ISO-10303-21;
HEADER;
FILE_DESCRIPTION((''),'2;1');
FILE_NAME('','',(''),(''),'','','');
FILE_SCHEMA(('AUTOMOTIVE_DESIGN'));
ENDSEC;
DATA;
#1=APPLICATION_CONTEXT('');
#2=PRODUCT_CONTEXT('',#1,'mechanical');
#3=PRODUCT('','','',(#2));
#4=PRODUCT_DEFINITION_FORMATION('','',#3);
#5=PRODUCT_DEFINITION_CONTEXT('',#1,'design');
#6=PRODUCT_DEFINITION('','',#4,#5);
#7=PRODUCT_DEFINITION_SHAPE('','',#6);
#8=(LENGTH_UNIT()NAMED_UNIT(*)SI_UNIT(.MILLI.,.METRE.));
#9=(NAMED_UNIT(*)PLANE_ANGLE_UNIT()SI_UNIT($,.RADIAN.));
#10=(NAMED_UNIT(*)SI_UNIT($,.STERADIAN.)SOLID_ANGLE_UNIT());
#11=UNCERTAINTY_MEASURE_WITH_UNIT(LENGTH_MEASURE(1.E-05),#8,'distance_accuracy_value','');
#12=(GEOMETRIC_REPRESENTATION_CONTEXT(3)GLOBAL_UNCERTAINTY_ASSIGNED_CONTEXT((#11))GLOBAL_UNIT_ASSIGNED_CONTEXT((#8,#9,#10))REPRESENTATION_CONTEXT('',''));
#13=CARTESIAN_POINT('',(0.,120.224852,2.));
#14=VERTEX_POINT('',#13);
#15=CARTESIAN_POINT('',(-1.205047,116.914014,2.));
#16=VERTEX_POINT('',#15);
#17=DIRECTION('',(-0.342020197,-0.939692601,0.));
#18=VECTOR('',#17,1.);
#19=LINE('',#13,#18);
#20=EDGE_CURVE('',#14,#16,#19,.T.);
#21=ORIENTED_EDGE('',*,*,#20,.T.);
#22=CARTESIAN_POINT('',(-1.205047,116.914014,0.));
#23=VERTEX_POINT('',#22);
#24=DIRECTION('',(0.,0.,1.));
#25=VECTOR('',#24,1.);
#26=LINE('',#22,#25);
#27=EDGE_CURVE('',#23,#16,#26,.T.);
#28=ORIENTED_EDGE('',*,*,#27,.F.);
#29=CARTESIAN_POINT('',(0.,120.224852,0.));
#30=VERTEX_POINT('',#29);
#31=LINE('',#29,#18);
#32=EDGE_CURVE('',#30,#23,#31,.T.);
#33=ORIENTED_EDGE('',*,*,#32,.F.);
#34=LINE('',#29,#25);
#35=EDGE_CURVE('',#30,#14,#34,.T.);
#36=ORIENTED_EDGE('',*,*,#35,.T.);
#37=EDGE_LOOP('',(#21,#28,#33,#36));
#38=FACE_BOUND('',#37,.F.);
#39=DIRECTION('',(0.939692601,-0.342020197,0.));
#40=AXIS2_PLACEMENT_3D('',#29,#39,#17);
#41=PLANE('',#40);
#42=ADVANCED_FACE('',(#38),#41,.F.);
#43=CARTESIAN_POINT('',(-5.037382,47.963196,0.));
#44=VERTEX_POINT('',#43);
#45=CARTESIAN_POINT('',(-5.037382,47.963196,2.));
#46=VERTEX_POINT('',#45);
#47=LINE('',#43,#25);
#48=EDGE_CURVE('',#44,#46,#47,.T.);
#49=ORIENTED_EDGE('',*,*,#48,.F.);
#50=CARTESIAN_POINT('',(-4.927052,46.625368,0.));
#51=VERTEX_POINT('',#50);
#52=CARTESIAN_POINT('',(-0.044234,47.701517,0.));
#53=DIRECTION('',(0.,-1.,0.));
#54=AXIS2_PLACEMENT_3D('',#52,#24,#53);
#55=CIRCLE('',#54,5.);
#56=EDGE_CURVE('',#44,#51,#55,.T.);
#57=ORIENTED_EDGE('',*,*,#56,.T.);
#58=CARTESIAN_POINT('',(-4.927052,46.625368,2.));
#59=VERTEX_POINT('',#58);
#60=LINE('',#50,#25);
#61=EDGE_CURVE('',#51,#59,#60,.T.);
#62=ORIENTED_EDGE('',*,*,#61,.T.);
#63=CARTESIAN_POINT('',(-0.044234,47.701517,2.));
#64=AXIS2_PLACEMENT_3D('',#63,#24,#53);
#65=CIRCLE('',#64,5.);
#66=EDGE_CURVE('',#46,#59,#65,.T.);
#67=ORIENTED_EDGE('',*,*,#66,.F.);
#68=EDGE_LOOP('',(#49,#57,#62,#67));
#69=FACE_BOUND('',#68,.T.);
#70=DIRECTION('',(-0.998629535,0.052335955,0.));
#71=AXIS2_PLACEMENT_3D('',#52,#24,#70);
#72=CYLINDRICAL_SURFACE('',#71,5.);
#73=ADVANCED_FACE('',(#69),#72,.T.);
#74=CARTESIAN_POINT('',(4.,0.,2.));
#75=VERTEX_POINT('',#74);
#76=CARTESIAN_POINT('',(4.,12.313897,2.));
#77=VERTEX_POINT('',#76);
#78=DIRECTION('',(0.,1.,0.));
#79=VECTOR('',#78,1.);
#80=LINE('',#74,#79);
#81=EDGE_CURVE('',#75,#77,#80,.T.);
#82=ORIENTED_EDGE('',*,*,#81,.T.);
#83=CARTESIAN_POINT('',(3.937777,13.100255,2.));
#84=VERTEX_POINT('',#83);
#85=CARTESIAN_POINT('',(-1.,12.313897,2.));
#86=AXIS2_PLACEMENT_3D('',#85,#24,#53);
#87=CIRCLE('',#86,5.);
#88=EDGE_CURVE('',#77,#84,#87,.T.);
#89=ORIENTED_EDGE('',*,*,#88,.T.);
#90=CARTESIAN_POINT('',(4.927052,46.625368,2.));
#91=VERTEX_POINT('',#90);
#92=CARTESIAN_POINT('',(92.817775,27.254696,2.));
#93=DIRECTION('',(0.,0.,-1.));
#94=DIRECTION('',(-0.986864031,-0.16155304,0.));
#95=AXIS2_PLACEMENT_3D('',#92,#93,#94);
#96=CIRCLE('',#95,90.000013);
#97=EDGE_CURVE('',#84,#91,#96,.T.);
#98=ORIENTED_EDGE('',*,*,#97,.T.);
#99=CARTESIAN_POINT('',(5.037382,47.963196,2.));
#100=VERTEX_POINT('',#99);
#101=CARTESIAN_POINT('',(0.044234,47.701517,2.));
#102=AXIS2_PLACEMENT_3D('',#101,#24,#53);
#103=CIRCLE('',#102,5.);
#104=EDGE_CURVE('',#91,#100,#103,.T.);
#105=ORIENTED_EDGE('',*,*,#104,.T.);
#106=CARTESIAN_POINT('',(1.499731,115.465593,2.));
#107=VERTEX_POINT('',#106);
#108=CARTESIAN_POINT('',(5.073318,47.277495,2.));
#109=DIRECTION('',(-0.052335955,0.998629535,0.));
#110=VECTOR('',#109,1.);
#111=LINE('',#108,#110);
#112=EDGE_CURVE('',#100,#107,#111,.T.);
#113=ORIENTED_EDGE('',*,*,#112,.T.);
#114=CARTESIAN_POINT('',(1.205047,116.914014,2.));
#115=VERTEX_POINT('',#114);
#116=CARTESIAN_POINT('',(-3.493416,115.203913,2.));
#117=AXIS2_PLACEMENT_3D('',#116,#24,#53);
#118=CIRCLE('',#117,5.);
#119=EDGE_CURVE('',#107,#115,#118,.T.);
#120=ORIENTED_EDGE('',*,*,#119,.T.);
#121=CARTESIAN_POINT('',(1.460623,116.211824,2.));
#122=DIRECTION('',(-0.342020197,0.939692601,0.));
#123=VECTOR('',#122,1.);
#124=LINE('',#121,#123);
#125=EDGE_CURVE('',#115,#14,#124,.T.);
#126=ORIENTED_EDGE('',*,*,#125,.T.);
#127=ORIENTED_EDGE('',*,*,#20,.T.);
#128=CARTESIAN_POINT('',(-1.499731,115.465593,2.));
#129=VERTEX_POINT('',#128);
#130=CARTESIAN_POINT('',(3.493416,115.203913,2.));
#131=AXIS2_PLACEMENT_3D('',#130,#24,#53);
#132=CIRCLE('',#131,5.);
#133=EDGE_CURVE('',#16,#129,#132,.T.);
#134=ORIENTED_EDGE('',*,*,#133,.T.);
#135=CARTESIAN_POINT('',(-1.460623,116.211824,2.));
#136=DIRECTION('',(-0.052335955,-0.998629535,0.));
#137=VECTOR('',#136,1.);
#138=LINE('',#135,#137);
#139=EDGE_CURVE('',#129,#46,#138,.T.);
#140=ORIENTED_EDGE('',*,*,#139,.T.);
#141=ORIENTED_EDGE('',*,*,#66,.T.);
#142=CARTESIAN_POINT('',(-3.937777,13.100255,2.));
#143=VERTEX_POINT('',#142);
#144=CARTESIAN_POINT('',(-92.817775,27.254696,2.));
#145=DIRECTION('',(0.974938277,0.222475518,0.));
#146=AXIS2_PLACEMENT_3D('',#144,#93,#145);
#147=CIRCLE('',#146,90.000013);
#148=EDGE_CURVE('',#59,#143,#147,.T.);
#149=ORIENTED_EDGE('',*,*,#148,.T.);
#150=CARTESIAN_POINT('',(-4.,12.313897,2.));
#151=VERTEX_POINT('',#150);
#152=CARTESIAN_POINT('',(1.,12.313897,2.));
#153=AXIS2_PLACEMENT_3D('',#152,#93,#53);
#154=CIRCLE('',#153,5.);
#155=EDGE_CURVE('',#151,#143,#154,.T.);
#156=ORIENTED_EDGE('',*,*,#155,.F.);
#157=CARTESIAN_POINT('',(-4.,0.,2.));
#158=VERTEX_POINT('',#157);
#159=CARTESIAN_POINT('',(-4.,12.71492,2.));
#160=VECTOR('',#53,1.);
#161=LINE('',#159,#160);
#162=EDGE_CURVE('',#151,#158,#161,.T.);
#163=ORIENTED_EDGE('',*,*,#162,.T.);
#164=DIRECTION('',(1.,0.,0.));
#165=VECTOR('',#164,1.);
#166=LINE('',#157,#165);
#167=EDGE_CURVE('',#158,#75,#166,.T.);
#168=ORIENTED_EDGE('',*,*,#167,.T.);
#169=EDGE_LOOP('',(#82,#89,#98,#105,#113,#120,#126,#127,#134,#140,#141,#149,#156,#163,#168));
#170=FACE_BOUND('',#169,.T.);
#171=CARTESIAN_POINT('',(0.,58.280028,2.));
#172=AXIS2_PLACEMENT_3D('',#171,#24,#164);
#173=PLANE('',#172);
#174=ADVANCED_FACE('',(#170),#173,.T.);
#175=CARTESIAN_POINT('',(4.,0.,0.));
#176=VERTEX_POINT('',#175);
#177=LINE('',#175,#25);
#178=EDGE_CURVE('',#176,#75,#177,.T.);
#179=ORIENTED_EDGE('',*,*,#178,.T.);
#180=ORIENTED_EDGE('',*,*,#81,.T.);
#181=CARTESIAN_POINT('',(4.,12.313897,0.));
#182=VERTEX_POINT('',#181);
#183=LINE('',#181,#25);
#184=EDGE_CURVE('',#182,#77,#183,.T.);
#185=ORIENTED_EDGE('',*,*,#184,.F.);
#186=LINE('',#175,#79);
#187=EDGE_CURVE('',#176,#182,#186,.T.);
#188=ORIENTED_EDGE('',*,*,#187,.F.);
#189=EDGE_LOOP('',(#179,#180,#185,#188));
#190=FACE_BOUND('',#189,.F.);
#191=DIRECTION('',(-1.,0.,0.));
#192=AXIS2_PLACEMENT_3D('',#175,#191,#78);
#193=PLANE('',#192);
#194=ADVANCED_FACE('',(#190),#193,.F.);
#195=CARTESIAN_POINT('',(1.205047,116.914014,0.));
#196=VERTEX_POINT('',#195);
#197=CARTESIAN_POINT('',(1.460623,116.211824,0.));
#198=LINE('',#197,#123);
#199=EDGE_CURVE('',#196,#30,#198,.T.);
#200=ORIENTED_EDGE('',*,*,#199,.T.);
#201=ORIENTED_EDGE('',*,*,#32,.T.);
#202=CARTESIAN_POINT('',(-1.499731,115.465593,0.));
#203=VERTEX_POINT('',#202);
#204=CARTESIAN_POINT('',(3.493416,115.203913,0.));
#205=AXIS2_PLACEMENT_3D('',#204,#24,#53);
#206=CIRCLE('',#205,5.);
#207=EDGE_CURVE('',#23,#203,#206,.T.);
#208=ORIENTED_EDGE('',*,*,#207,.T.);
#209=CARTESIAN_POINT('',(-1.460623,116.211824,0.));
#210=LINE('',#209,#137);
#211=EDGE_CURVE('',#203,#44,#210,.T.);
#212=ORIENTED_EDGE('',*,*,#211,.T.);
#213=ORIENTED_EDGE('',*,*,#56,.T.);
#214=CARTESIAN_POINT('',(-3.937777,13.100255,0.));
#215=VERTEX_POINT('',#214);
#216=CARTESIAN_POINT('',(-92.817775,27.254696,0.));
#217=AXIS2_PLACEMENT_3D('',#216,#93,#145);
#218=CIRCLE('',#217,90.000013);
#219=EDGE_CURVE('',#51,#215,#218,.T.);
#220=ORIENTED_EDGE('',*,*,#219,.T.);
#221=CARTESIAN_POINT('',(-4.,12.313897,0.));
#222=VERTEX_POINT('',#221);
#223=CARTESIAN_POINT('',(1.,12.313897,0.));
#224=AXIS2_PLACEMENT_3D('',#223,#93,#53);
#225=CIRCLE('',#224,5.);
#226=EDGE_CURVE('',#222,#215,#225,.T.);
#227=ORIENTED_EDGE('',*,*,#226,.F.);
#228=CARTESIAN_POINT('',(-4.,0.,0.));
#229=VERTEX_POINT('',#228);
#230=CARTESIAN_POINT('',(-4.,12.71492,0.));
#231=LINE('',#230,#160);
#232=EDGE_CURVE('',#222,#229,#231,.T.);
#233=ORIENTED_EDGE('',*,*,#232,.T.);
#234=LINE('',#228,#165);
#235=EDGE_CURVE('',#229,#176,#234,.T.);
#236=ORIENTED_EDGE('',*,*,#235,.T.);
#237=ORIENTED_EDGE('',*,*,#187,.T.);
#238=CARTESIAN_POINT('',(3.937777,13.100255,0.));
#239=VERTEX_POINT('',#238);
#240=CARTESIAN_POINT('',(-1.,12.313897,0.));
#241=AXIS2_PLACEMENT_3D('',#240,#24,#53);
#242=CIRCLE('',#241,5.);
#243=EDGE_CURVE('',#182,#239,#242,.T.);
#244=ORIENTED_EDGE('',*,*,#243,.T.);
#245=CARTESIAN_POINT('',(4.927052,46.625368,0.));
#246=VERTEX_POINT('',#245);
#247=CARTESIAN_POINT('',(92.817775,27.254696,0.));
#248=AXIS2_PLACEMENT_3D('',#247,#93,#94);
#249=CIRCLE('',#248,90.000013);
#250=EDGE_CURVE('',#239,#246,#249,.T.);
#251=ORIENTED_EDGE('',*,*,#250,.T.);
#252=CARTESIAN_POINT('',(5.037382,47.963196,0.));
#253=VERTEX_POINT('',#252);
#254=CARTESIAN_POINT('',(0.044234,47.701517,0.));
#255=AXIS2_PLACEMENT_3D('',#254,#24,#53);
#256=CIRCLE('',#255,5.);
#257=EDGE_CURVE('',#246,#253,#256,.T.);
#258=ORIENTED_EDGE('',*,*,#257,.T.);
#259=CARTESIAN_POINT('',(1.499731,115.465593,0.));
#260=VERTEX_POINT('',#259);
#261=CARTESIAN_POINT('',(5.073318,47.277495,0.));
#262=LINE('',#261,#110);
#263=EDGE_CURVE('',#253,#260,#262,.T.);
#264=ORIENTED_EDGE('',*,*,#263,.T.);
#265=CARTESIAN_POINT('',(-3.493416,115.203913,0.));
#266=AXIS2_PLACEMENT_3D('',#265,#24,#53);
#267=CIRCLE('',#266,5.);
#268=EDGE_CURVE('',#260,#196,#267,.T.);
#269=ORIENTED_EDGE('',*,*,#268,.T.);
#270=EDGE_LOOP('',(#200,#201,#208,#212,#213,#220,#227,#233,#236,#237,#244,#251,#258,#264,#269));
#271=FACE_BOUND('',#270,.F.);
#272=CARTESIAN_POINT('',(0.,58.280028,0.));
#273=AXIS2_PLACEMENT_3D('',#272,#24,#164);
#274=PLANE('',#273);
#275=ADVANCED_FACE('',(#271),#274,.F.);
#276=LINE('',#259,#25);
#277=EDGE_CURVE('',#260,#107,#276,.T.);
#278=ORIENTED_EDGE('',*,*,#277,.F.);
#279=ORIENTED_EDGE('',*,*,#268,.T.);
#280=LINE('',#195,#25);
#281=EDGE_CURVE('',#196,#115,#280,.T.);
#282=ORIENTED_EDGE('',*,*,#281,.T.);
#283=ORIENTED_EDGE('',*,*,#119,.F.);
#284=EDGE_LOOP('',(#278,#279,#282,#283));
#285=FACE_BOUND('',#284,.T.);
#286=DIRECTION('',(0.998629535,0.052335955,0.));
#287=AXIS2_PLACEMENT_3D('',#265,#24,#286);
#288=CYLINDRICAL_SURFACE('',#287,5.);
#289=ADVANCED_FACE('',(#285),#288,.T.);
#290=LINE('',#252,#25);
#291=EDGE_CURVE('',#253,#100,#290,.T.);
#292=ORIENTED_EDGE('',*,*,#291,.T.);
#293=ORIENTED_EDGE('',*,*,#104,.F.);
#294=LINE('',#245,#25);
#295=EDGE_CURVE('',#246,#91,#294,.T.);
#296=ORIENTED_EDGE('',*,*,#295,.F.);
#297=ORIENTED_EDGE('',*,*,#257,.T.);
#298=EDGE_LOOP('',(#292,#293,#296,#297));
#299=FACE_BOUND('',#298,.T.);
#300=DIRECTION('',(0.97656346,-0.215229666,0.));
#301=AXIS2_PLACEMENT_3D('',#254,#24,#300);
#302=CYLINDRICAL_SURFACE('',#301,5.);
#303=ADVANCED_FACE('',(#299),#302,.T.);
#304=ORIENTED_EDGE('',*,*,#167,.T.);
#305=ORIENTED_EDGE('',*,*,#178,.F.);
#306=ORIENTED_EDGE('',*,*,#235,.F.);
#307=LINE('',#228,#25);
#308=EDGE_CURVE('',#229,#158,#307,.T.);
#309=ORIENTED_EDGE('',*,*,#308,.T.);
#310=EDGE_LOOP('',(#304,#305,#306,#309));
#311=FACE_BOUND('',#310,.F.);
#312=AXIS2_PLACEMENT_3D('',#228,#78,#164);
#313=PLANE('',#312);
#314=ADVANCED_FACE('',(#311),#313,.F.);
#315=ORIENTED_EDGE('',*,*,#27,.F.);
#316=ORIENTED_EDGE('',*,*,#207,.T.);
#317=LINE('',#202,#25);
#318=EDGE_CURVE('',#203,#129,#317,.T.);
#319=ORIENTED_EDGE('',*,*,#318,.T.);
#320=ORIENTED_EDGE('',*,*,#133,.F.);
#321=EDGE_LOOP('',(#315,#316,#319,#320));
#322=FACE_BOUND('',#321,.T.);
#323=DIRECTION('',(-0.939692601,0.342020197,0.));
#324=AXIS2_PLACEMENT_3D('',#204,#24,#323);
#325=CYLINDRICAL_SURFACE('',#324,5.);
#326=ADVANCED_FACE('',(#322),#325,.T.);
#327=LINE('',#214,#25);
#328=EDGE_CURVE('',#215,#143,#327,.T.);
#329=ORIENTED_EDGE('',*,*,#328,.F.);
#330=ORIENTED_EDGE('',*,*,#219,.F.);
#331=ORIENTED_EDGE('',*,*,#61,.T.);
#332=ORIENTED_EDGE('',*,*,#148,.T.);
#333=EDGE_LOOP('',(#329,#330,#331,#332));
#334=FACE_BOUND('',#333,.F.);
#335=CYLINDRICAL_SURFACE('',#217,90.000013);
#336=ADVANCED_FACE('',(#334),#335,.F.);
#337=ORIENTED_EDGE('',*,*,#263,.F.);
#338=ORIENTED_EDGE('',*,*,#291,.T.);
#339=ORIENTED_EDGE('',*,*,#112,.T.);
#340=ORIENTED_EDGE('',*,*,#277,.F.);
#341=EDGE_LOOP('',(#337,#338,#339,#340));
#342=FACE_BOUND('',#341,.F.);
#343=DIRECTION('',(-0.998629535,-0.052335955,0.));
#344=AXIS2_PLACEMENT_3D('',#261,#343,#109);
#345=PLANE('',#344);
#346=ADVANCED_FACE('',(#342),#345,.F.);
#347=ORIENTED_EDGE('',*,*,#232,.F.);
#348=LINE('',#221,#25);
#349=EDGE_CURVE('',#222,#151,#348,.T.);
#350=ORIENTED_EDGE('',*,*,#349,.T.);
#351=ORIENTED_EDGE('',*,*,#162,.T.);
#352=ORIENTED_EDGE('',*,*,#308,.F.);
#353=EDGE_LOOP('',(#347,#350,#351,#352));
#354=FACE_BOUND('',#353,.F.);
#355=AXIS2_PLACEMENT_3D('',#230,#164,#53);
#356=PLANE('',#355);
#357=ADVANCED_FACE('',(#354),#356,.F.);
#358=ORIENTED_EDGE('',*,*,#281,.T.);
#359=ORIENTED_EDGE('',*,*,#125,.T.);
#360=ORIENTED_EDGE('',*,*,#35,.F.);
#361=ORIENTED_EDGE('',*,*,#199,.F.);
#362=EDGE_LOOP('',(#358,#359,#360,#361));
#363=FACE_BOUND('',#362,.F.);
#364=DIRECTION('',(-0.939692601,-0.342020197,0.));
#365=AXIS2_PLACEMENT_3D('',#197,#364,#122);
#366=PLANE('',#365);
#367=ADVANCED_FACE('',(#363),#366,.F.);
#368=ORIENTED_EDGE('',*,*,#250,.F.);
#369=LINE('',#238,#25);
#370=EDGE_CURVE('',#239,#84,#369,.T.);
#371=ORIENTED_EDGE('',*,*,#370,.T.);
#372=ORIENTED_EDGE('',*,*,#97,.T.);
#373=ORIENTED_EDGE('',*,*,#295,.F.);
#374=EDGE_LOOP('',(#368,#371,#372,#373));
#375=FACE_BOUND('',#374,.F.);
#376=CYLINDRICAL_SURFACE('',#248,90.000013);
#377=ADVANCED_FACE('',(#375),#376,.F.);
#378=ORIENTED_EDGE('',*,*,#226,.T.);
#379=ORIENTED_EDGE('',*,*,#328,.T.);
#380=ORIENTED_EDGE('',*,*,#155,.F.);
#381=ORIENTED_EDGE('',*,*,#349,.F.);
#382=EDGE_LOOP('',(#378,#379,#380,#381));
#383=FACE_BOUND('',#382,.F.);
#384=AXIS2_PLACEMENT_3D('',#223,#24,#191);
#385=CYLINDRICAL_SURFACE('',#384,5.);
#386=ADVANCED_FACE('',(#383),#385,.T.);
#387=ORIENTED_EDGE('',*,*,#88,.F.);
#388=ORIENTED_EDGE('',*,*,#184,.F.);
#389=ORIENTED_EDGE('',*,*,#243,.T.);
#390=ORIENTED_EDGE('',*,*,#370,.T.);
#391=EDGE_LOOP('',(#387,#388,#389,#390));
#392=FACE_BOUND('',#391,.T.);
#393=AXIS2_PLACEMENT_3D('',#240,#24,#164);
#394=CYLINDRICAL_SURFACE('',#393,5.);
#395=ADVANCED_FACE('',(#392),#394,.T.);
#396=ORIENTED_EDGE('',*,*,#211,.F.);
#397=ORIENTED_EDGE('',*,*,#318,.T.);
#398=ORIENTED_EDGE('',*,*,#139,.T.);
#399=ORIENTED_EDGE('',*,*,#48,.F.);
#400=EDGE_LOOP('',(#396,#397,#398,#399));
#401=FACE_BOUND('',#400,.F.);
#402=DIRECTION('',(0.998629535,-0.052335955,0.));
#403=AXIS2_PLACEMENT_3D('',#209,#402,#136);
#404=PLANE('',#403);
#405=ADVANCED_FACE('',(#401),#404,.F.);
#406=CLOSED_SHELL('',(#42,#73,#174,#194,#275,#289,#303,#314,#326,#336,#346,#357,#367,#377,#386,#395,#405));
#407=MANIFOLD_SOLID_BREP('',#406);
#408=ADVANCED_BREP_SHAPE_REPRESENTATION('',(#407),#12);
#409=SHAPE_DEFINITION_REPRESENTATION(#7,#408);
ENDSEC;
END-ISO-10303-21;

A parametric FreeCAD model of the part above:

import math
import FreeCAD as App
import Part
import Sketcher
from FreeCAD import Vector
Q = App.Units.Quantity


def edges_at(feature, points):
    """Names of the edges that pass closest to the given points."""
    edges = feature.Shape.Edges
    near = lambda p: min(range(len(edges)), key=lambda i: edges[i].distToShape(Part.Vertex(*p))[0])
    return sorted({f"Edge{near(p) + 1}" for p in points})

doc = App.newDocument("Part")
body = doc.addObject("PartDesign::Body", "Body")

# Sketch on XY plane
sketch1 = body.newObject("Sketcher::SketchObject", "Sketch")
sketch1.AttachmentSupport = (doc.getObject("XY_Plane"), [""])
sketch1.MapMode = "FlatFace"
sketch1.addGeometry(Part.LineSegment(Vector(-4, 12.7, 0), Vector(-4, 0, 0)), False)
sketch1.addGeometry(Part.LineSegment(Vector(-4, 0, 0), Vector(4, 0, 0)), False)
sketch1.addGeometry(Part.LineSegment(Vector(4, 0, 0), Vector(4, 12.7, 0)), False)
sketch1.addGeometry(Part.ArcOfCircle(Part.Circle(Vector(92.8, 27.3, 0), Vector(0, 0, 1), 90), math.radians(167), math.radians(189)), False)
sketch1.addGeometry(Part.LineSegment(Vector(5.1, 47.3, 0), Vector(1.5, 116.2, 0)), False)
sketch1.addGeometry(Part.LineSegment(Vector(1.5, 116.2, 0), Vector(0, 120.2, 0)), False)
sketch1.addGeometry(Part.LineSegment(Vector(0, 120.2, 0), Vector(-1.5, 116.2, 0)), False)
sketch1.addGeometry(Part.LineSegment(Vector(-1.5, 116.2, 0), Vector(-5.1, 47.3, 0)), False)
sketch1.addGeometry(Part.ArcOfCircle(Part.Circle(Vector(-92.8, 27.3, 0), Vector(0, 0, 1), 90), math.radians(-9), math.radians(13)), False)
sketch1.addConstraint(Sketcher.Constraint("Coincident", 0, 2, 1, 1))
sketch1.addConstraint(Sketcher.Constraint("Coincident", 1, 2, 2, 1))
sketch1.addConstraint(Sketcher.Constraint("Coincident", 2, 2, 3, 2))
sketch1.addConstraint(Sketcher.Constraint("Coincident", 3, 1, 4, 1))
sketch1.addConstraint(Sketcher.Constraint("Coincident", 4, 2, 5, 1))
sketch1.addConstraint(Sketcher.Constraint("Coincident", 5, 2, 6, 1))
sketch1.addConstraint(Sketcher.Constraint("Coincident", 6, 2, 7, 1))
sketch1.addConstraint(Sketcher.Constraint("Coincident", 7, 2, 8, 2))
sketch1.addConstraint(Sketcher.Constraint("Coincident", 8, 1, 0, 1))
sketch1.addConstraint(Sketcher.Constraint("Vertical", 0))
sketch1.addConstraint(Sketcher.Constraint("Horizontal", 1))
sketch1.addConstraint(Sketcher.Constraint("Vertical", 2))
sketch1.addConstraint(Sketcher.Constraint("Equal", 3, 8))
sketch1.addConstraint(Sketcher.Constraint("Symmetric", 0, 2, 1, 2, -1, 1))
sketch1.addConstraint(Sketcher.Constraint("Symmetric", 3, 3, 8, 3, -2))
sketch1.addConstraint(Sketcher.Constraint("Symmetric", 4, 2, 6, 2, -2))
sketch1.addConstraint(Sketcher.Constraint("PointOnObject", 5, 2, -2))
sketch1.addConstraint(Sketcher.Constraint("Horizontal", 3, 1, 7, 2))
sketch1.addConstraint(Sketcher.Constraint("DistanceX", 1, 1, 1, 2, 8.0))
sketch1.addConstraint(Sketcher.Constraint("Angle", 4, Q("93 deg")))
sketch1.addConstraint(Sketcher.Constraint("Angle", 5, Q("110.000003 deg")))
sketch1.addConstraint(Sketcher.Constraint("Radius", 3, 90.000013))
sketch1.addConstraint(Sketcher.Constraint("DistanceY", 0, 2, 0, 1, 12.71492))
sketch1.addConstraint(Sketcher.Constraint("DistanceY", 3, 3, 3, 1, 20.022799))
sketch1.addConstraint(Sketcher.Constraint("Distance", 4, 69.028931))
sketch1.addConstraint(Sketcher.Constraint("DistanceY", -1, 1, 5, 2, 120.224852))
pad1 = body.newObject("PartDesign::Pad", "Pad")
pad1.Profile = sketch1
pad1.Length = 2
doc.recompute()

fillet = body.newObject("PartDesign::Fillet", "Fillet")
fillet.Base = (pad1, edges_at(pad1, [
    (-1.461, 116.212, 1),
    (1.461, 116.212, 1),
    (5.073, 47.277, 1),
    (-5.073, 47.277, 1),
    (-4, 12.715, 1),
    (4, 12.715, 1),
]))
fillet.Radius = 5

doc.recompute()
